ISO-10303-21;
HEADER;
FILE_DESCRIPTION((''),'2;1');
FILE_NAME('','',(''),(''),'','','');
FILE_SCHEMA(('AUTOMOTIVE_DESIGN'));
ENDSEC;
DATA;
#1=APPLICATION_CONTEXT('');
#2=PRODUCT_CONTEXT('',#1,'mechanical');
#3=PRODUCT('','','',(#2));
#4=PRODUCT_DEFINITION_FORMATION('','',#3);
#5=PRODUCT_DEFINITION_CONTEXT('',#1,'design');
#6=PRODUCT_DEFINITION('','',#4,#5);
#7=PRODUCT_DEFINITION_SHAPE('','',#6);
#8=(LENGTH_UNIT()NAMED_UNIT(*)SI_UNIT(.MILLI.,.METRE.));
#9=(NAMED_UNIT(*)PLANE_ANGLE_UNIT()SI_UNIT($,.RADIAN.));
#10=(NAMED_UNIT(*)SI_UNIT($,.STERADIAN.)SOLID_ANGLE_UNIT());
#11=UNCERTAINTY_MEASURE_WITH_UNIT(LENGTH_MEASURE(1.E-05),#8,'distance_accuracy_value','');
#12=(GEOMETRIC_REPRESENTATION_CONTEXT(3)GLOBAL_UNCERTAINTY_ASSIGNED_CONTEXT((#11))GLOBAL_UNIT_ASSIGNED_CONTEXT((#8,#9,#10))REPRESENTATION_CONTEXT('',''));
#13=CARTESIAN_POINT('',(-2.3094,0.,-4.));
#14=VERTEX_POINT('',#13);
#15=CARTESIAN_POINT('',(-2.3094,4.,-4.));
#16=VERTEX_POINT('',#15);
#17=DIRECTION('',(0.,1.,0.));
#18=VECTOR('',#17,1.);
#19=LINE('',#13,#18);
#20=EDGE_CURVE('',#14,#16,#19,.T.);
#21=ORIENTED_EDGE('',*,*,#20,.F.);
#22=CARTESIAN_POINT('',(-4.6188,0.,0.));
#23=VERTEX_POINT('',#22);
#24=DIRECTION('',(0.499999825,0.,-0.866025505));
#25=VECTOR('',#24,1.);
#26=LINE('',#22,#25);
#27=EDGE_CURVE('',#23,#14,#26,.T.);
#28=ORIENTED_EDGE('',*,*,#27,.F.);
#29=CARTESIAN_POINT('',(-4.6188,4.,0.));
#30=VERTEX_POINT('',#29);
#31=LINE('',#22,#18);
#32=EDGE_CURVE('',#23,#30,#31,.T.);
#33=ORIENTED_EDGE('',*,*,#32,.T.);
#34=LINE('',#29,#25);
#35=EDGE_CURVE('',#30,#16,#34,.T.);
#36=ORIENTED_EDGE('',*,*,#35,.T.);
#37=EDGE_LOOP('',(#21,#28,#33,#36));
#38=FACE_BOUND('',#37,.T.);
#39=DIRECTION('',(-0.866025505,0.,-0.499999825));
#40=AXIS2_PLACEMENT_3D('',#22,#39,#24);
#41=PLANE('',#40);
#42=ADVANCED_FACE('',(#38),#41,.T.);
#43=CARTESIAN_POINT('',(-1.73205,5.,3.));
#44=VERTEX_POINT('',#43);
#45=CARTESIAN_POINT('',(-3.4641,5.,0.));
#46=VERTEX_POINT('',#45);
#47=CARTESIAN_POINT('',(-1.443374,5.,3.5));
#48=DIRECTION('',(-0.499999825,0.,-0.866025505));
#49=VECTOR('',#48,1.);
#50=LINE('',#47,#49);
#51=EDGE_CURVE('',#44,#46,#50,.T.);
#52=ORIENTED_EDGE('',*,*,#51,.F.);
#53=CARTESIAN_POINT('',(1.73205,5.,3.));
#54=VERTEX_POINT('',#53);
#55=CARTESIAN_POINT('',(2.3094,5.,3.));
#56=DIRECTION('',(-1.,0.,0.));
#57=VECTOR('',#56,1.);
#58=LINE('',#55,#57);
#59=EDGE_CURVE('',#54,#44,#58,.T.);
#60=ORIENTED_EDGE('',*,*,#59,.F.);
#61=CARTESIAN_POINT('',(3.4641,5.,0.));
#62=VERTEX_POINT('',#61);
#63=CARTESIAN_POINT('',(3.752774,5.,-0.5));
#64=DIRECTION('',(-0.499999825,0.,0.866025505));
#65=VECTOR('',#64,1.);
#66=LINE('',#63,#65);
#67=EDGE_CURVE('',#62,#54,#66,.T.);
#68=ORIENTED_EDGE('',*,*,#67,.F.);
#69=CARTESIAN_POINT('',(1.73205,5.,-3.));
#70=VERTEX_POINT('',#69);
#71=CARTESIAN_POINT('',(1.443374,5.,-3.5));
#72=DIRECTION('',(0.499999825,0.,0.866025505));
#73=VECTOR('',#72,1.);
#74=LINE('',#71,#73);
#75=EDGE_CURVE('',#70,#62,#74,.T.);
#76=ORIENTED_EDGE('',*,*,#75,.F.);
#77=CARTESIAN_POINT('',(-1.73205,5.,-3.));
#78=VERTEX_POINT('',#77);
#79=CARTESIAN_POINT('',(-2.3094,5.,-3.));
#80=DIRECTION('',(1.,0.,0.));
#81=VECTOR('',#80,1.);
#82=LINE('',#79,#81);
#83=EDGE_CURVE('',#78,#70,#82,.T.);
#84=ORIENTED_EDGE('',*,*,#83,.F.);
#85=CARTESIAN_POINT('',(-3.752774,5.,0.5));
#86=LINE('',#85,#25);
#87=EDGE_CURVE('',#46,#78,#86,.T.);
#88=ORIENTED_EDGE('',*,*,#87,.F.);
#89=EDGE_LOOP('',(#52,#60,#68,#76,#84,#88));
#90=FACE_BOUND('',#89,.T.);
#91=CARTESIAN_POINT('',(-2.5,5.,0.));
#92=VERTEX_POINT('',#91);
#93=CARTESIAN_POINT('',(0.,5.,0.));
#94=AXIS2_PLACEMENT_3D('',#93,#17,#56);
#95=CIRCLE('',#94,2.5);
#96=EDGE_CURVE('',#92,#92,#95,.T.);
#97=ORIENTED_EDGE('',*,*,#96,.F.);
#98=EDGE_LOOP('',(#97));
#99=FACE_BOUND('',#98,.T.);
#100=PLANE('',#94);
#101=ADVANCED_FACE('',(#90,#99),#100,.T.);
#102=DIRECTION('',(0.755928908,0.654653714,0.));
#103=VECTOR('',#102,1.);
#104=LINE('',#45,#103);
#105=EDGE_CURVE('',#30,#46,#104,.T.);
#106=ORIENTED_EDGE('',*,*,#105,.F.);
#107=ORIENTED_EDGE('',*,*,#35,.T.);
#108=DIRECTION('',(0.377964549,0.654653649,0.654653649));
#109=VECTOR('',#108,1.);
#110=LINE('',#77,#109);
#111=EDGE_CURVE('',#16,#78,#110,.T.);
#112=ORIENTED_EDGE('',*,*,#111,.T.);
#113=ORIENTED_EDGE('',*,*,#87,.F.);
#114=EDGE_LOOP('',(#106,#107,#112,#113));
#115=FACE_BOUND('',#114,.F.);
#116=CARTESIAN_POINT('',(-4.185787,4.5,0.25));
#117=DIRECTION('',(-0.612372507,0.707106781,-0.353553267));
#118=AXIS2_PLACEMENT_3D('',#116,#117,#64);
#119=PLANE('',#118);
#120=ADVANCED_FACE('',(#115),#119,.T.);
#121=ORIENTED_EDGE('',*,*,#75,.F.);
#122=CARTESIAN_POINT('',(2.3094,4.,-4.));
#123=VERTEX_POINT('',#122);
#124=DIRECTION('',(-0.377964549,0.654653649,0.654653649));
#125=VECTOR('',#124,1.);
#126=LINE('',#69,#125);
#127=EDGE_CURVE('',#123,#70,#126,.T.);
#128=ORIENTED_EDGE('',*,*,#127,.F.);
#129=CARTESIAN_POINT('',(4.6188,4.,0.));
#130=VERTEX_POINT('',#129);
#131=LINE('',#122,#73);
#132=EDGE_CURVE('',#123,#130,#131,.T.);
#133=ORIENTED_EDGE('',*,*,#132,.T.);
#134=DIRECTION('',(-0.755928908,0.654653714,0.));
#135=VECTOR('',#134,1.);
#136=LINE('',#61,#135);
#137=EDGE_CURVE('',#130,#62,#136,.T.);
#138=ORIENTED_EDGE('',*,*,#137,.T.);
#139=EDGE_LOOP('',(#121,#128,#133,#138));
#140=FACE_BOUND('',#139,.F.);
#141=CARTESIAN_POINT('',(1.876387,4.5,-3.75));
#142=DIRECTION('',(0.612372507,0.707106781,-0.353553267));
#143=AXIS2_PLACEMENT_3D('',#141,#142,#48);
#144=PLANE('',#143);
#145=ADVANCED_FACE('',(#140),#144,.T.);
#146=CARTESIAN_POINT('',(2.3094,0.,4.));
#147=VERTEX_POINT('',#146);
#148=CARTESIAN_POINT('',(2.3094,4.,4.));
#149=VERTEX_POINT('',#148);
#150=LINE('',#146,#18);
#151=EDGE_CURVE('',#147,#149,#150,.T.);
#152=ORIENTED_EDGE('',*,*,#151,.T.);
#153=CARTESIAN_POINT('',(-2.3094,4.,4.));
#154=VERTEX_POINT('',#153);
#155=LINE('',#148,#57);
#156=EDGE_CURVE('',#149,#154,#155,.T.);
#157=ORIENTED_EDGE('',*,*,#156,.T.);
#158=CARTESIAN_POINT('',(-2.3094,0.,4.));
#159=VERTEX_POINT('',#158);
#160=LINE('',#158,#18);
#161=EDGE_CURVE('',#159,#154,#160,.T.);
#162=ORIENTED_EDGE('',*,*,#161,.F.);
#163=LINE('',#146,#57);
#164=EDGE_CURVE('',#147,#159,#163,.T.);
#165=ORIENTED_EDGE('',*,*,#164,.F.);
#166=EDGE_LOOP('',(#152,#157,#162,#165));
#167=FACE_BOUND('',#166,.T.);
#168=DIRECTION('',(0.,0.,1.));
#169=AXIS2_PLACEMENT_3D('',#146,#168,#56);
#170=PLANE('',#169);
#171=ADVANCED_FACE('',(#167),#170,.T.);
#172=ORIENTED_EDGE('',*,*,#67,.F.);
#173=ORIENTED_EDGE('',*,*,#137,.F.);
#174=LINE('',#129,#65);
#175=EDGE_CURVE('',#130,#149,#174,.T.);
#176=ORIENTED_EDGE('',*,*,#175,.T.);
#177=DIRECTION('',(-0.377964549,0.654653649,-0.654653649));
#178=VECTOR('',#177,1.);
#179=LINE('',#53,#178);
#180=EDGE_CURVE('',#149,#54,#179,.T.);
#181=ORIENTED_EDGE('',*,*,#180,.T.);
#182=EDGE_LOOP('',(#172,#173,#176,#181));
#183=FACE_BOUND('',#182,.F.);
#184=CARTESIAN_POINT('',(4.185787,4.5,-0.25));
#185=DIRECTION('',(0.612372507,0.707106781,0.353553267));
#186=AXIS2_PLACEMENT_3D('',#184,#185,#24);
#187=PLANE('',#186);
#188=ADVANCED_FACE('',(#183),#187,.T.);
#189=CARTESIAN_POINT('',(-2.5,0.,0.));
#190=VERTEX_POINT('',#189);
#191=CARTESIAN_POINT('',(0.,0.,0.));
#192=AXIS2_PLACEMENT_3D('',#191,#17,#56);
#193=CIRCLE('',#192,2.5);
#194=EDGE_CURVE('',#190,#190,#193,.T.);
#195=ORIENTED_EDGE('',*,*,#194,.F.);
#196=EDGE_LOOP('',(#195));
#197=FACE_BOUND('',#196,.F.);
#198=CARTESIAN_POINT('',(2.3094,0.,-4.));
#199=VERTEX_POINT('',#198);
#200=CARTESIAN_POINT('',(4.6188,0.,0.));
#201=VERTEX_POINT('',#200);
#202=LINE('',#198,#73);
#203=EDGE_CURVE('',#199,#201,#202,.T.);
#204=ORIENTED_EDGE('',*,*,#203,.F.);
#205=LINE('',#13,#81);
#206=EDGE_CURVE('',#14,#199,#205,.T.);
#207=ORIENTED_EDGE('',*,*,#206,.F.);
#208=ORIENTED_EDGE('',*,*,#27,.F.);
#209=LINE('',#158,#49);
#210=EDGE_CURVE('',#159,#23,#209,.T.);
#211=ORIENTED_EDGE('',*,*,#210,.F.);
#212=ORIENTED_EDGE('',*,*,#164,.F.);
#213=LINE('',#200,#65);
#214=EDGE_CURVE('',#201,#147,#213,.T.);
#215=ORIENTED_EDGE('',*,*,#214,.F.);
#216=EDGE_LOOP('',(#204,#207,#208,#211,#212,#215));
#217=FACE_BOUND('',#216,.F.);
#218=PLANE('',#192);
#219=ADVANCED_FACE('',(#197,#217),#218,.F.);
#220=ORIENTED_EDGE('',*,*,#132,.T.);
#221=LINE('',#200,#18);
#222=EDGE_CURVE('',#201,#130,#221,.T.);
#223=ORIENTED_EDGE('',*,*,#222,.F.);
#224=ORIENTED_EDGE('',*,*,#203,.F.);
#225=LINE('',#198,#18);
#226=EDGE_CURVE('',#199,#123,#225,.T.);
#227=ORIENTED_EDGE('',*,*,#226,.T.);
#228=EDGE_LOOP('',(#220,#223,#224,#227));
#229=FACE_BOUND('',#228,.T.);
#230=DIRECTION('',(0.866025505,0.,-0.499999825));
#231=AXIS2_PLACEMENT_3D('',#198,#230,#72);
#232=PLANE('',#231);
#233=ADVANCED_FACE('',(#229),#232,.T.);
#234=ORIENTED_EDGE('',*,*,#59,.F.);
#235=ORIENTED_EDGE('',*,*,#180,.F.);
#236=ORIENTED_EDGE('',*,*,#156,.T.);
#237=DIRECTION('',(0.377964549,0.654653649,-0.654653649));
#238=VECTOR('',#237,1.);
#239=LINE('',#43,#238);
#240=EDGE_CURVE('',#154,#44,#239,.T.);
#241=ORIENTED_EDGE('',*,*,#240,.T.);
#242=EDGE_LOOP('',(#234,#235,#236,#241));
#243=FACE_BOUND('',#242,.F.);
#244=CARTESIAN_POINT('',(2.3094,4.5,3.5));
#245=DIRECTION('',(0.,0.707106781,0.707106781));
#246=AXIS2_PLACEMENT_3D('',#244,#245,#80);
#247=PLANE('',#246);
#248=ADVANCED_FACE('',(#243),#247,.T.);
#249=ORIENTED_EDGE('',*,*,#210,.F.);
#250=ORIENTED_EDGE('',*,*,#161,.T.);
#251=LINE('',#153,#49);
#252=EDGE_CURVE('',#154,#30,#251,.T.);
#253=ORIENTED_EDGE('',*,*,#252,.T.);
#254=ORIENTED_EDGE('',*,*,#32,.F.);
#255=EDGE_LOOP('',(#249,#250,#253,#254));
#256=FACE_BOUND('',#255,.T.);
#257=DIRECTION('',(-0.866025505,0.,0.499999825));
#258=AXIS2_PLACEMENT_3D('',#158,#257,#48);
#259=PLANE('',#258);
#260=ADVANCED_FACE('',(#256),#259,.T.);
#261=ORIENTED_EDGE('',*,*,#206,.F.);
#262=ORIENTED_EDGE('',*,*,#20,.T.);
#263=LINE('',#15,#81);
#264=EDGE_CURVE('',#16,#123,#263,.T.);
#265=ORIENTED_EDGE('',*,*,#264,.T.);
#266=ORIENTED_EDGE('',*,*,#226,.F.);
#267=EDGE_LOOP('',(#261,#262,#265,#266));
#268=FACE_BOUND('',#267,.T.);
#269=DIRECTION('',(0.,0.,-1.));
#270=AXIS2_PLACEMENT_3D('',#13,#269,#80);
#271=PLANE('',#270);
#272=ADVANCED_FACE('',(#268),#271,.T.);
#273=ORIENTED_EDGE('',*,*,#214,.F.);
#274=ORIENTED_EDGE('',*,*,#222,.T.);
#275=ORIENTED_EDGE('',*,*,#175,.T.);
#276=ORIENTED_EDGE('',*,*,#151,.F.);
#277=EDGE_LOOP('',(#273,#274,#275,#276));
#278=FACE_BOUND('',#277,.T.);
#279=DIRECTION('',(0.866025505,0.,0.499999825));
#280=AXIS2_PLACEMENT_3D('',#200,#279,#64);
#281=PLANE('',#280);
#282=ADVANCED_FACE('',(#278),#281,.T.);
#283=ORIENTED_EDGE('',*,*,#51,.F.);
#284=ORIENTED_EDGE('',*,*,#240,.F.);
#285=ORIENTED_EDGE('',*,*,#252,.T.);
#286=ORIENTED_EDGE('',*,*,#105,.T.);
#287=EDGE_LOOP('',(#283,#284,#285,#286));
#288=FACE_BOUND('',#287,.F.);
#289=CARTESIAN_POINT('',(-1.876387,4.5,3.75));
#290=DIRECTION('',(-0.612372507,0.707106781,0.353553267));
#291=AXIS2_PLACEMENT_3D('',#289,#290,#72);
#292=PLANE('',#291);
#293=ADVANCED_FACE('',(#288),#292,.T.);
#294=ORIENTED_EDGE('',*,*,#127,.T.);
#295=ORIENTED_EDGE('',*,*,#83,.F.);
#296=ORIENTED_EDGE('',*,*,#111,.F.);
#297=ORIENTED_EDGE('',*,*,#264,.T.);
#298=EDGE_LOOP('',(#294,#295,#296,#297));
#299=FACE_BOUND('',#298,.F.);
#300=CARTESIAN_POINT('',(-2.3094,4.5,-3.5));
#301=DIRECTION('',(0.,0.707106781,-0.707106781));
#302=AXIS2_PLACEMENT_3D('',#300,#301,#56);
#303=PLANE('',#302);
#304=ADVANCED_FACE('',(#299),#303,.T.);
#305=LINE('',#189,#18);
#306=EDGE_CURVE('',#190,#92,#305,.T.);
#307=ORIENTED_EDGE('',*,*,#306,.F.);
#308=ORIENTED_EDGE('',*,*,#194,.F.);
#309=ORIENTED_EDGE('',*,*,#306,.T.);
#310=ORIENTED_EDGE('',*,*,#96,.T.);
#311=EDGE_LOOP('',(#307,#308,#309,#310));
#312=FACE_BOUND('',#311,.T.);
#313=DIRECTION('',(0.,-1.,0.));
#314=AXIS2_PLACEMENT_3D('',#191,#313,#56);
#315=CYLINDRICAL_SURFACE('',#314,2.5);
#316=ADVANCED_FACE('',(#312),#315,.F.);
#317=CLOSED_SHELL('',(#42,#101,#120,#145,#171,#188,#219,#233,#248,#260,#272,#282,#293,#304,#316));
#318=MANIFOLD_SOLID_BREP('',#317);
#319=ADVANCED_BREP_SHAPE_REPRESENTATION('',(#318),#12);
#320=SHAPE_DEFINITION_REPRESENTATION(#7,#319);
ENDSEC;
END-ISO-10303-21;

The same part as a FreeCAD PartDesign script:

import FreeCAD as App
import Part
import Sketcher
from FreeCAD import Vector
Q = App.Units.Quantity


def edges_at(feature, points):
    """Names of the edges that pass closest to the given points."""
    edges = feature.Shape.Edges
    near = lambda p: min(range(len(edges)), key=lambda i: edges[i].distToShape(Part.Vertex(*p))[0])
    return sorted({f"Edge{near(p) + 1}" for p in points})


def add_polygon(sketch, points):
    """Adds a closed chain of lines whose ends are joined by coincident constraints."""
    first, n = sketch.GeometryCount, len(points)
    for a, b in zip(points, points[1:] + points[:1]):
        sketch.addGeometry(Part.LineSegment(App.Vector(*a, 0), App.Vector(*b, 0)), False)
    for i in range(n):
        sketch.addConstraint(Sketcher.Constraint("Coincident", first + i, 2, first + (i + 1) % n, 1))

doc = App.newDocument("Part")
body = doc.addObject("PartDesign::Body", "Body")

# Sketch on XZ plane
sketch1 = body.newObject("Sketcher::SketchObject", "Sketch")
sketch1.AttachmentSupport = (doc.getObject("XZ_Plane"), [""])
sketch1.MapMode = "FlatFace"
add_polygon(sketch1, [(4.6, 0), (2.3, -4), (-2.3, -4), (-4.6, 0), (-2.3, 4), (2.3, 4)])  # lines 0-5
sketch1.addGeometry(Part.Circle(Vector(0, 0, 0), Vector(0, 0, 1), 2.5), False)  # 6
sketch1.addConstraint([
    Sketcher.Constraint("Horizontal", 1),
    Sketcher.Constraint("Horizontal", 4),
    Sketcher.Constraint("Coincident", 6, 3, -1, 1),
    Sketcher.Constraint("Symmetric", 0, 2, 3, 2, -1, 1),
    Sketcher.Constraint("Symmetric", 2, 2, 5, 2, -1, 1),
    Sketcher.Constraint("PointOnObject", 2, 2, -1),
    Sketcher.Constraint("Parallel", 2, 5),
    Sketcher.Constraint("Vertical", 1, 2, 3, 2),
    Sketcher.Constraint("Diameter", 6, Q("5 mm")),
    Sketcher.Constraint("DistanceY", 1, 2, 3, 2, Q("8 mm")),
    Sketcher.Constraint("Angle", 0, Q("-120 deg")),
    Sketcher.Constraint("DistanceX", 1, 2, 1, 1, Q("4.6188 mm")),
])
pad1 = body.newObject("PartDesign::Pad", "Pad")
pad1.Profile = sketch1
pad1.Length = 5
pad1.Reversed = True
doc.recompute()

chamfer = body.newObject("PartDesign::Chamfer", "Chamfer")
chamfer.Base = (pad1, edges_at(pad1, [
    (-3.464, 5, 2),
    (0, 5, 4),
    (3.464, 5, 2),
    (3.464, 5, -2),
    (0, 5, -4),
    (-3.464, 5, -2),
]))
chamfer.Size = 1

doc.recompute()
